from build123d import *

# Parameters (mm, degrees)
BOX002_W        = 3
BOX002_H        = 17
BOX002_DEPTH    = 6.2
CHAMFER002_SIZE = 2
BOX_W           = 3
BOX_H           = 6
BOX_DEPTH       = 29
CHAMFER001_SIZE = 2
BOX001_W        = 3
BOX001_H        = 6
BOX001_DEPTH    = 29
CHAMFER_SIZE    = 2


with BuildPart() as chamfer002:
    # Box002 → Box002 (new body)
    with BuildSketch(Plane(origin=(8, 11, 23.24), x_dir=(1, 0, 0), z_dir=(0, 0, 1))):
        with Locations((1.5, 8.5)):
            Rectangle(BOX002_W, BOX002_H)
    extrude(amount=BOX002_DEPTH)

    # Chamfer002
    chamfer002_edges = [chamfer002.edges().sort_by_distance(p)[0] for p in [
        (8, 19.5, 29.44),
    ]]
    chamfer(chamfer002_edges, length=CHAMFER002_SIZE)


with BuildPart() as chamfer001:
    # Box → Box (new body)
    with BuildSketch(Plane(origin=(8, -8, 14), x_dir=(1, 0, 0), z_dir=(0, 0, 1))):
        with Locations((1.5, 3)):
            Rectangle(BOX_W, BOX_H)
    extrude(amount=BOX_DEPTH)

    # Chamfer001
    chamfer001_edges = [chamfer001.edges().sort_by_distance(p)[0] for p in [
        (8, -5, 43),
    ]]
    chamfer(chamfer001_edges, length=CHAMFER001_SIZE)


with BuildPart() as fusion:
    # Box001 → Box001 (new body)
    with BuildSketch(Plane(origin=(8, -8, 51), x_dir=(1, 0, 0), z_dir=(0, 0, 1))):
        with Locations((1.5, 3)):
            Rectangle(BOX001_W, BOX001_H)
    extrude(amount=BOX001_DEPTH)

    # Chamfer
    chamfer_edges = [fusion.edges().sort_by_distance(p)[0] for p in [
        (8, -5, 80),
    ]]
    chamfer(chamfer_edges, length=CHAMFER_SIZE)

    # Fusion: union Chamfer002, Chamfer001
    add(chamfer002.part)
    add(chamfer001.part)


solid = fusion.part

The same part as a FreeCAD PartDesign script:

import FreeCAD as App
import Part
import Sketcher


def edges_at(feature, points):
    """Names of the edges that pass closest to the given points."""
    edges = feature.Shape.Edges
    near = lambda p: min(range(len(edges)), key=lambda i: edges[i].distToShape(Part.Vertex(*p))[0])
    return sorted({f"Edge{near(p) + 1}" for p in points})


def add_polygon(sketch, points):
    """Adds a closed chain of lines whose ends are joined by coincident constraints."""
    first, n = sketch.GeometryCount, len(points)
    for a, b in zip(points, points[1:] + points[:1]):
        sketch.addGeometry(Part.LineSegment(App.Vector(*a, 0), App.Vector(*b, 0)), False)
    for i in range(n):
        sketch.addConstraint(Sketcher.Constraint("Coincident", first + i, 2, first + (i + 1) % n, 1))

doc = App.newDocument("Part")
body = doc.addObject("PartDesign::Body", "Body")

sketch1 = body.newObject("Sketcher::SketchObject", "Sketch")
sketch1.AttachmentSupport = (doc.getObject("XY_Plane"), [""])
sketch1.MapMode = "FlatFace"
sketch1.AttachmentOffset = App.Placement(App.Vector(0, 0, 23.24), App.Rotation())
add_polygon(sketch1, [(8, 28), (8, 11), (11, 11), (11, 28)])
sketch1.addConstraint([
    Sketcher.Constraint("Vertical", 0),
    Sketcher.Constraint("Horizontal", 1),
    Sketcher.Constraint("Vertical", 2),
    Sketcher.Constraint("Horizontal", 3),
    Sketcher.Constraint("DistanceX", 1, 1, 1, 2, 3.0),
    Sketcher.Constraint("DistanceY", 0, 2, 0, 1, 17.0),
    Sketcher.Constraint("DistanceX", -1, 1, 0, 2, 8.0),
    Sketcher.Constraint("DistanceY", -1, 1, 0, 2, 11.0),
])
pad1 = body.newObject("PartDesign::Pad", "Pad")
pad1.Profile = sketch1
pad1.Length = 6.2
doc.recompute()

chamfer = body.newObject("PartDesign::Chamfer", "Chamfer")
chamfer.Base = (pad1, edges_at(pad1, [(8, 19.5, 29.44)]))
chamfer.Size = 2
body2 = doc.addObject("PartDesign::Body", "Body001")

sketch2 = body2.newObject("Sketcher::SketchObject", "Sketch001")
sketch2.AttachmentSupport = (doc.getObject("XY_Plane001"), [""])
sketch2.MapMode = "FlatFace"
sketch2.AttachmentOffset = App.Placement(App.Vector(0, 0, 14), App.Rotation())
add_polygon(sketch2, [(8, -2), (8, -8), (11, -8), (11, -2)])
sketch2.addConstraint([
    Sketcher.Constraint("Vertical", 0),
    Sketcher.Constraint("Horizontal", 1),
    Sketcher.Constraint("Vertical", 2),
    Sketcher.Constraint("Horizontal", 3),
    Sketcher.Constraint("DistanceX", 1, 1, 1, 2, 3.0),
    Sketcher.Constraint("DistanceY", 0, 2, 0, 1, 6.0),
    Sketcher.Constraint("DistanceX", -1, 1, 0, 2, 8.0),
    Sketcher.Constraint("DistanceY", 0, 2, -1, 1, 8.0),
])
pad2 = body2.newObject("PartDesign::Pad", "Pad001")
pad2.Profile = sketch2
pad2.Length = 29
doc.recompute()

chamfer2 = body2.newObject("PartDesign::Chamfer", "Chamfer001")
chamfer2.Base = (pad2, edges_at(pad2, [(8, -5, 43)]))
chamfer2.Size = 2
body3 = doc.addObject("PartDesign::Body", "Body002")
body3.AllowCompound = True

sketch3 = body3.newObject("Sketcher::SketchObject", "Sketch002")
sketch3.AttachmentSupport = (doc.getObject("XY_Plane002"), [""])
sketch3.MapMode = "FlatFace"
sketch3.AttachmentOffset = App.Placement(App.Vector(0, 0, 51), App.Rotation())
add_polygon(sketch3, [(8, -2), (8, -8), (11, -8), (11, -2)])
sketch3.addConstraint([
    Sketcher.Constraint("Vertical", 0),
    Sketcher.Constraint("Horizontal", 1),
    Sketcher.Constraint("Vertical", 2),
    Sketcher.Constraint("Horizontal", 3),
    Sketcher.Constraint("DistanceX", 1, 1, 1, 2, 3.0),
    Sketcher.Constraint("DistanceY", 0, 2, 0, 1, 6.0),
    Sketcher.Constraint("DistanceX", -1, 1, 0, 2, 8.0),
    Sketcher.Constraint("DistanceY", 0, 2, -1, 1, 8.0),
])
pad3 = body3.newObject("PartDesign::Pad", "Pad002")
pad3.Profile = sketch3
pad3.Length = 29
doc.recompute()

chamfer3 = body3.newObject("PartDesign::Chamfer", "Chamfer002")
chamfer3.Base = (pad3, edges_at(pad3, [(8, -5, 80)]))
chamfer3.Size = 2
doc.recompute()

boolean = body3.newObject("PartDesign::Boolean", "Boolean")
boolean.Type = "Fuse"
boolean.addObjects([body])
doc.recompute()

boolean2 = body3.newObject("PartDesign::Boolean", "Boolean001")
boolean2.Type = "Fuse"
boolean2.addObjects([body2])

doc.recompute()
